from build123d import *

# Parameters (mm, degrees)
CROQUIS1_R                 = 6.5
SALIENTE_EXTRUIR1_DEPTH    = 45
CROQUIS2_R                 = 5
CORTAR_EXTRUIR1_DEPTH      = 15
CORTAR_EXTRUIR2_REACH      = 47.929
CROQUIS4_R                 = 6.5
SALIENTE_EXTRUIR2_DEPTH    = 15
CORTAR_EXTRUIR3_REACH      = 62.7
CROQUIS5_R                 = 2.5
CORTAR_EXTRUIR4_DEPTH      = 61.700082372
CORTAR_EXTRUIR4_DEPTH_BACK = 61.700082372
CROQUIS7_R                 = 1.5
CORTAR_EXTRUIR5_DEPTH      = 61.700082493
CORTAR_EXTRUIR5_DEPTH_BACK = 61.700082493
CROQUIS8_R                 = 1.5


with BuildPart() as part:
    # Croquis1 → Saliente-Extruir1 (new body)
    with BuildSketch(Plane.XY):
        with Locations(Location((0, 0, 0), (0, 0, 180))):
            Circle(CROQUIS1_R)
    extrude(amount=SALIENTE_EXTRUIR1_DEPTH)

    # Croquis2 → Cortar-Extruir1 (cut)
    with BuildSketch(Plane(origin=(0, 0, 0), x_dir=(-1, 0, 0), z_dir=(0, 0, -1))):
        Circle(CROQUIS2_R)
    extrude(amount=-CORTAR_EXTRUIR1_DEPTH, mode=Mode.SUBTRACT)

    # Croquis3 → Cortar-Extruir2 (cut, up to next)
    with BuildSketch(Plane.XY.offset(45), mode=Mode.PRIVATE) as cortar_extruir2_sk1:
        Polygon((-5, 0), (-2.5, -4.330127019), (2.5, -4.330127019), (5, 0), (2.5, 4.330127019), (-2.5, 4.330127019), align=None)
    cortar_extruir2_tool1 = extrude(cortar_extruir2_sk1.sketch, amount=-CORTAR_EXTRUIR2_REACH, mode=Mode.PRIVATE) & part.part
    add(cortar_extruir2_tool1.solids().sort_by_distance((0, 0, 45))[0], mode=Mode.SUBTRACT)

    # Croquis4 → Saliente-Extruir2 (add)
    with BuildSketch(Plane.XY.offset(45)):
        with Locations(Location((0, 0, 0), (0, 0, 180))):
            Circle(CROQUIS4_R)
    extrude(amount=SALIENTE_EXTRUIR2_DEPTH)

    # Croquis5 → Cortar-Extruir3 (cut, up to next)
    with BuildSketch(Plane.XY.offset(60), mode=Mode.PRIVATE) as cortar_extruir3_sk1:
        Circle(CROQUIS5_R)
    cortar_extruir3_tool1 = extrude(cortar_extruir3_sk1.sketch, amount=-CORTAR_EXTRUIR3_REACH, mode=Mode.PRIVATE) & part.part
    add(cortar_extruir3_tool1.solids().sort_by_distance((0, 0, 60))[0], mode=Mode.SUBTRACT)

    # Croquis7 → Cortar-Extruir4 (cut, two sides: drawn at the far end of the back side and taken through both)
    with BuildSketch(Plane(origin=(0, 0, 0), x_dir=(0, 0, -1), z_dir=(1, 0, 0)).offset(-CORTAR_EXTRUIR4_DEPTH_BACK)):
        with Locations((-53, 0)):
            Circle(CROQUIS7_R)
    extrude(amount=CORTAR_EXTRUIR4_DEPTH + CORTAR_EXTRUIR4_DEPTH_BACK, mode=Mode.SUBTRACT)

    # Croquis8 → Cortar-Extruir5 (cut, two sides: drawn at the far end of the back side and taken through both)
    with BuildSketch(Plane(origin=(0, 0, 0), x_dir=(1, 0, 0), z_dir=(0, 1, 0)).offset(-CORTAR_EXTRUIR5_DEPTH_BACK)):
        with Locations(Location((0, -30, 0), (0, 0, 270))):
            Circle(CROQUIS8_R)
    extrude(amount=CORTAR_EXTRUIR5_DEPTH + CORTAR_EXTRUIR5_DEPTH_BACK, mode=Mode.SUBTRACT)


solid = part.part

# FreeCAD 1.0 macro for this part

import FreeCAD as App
import Part
import Sketcher

V = App.Vector
Q = App.Units.Quantity

doc = App.newDocument("Part")
body = doc.addObject("PartDesign::Body", "Body")

# Sketch on XY plane
sketch1 = doc.addObject("Sketcher::SketchObject", "Sketch")
body.addObject(sketch1)
sketch1.AttachmentSupport = (doc.XY_Plane, [""])
sketch1.MapMode = "FlatFace"
sketch1.addGeometry(Part.Circle(V(0, 0, 0), V(0, 0, 1), 6), False)
sketch1.addConstraint(Sketcher.Constraint("Coincident", 0, 3, -1, 1))
sketch1.addConstraint(Sketcher.Constraint("Diameter", 0, 13.0))
pad1 = doc.addObject("PartDesign::Pad", "Pad")
body.addObject(pad1)
pad1.Profile = sketch1
pad1.Length = 45

# Sketch on XY plane
sketch2 = doc.addObject("Sketcher::SketchObject", "Sketch001")
body.addObject(sketch2)
sketch2.AttachmentSupport = (doc.XY_Plane, [""])
sketch2.MapMode = "FlatFace"
sketch2.addGeometry(Part.Circle(V(0, 0, 0), V(0, 0, 1), 5), False)
sketch2.addConstraint(Sketcher.Constraint("Coincident", 0, 3, -1, 1))
sketch2.addConstraint(Sketcher.Constraint("Diameter", 0, 10.0))
pocket1 = doc.addObject("PartDesign::Pocket", "Pocket")
body.addObject(pocket1)
pocket1.Profile = sketch2
pocket1.Length = 15
pocket1.Reversed = True

# Sketch on XY plane
sketch3 = doc.addObject("Sketcher::SketchObject", "Sketch002")
body.addObject(sketch3)
sketch3.AttachmentSupport = (doc.XY_Plane, [""])
sketch3.MapMode = "FlatFace"
sketch3.AttachmentOffset = App.Placement(V(0, 0, 45), App.Rotation())
sketch3.addGeometry(Part.LineSegment(V(-5, 0, 0), V(-2, -4, 0)), False)
sketch3.addGeometry(Part.LineSegment(V(-2, -4, 0), V(2, -4, 0)), False)
sketch3.addGeometry(Part.LineSegment(V(2, -4, 0), V(5, 0, 0)), False)
sketch3.addGeometry(Part.LineSegment(V(5, 0, 0), V(2, 4, 0)), False)
sketch3.addGeometry(Part.LineSegment(V(2, 4, 0), V(-2, 4, 0)), False)
sketch3.addGeometry(Part.LineSegment(V(-2, 4, 0), V(-5, 0, 0)), False)
sketch3.addConstraint(Sketcher.Constraint("Coincident", 0, 2, 1, 1))
sketch3.addConstraint(Sketcher.Constraint("Coincident", 1, 2, 2, 1))
sketch3.addConstraint(Sketcher.Constraint("Coincident", 2, 2, 3, 1))
sketch3.addConstraint(Sketcher.Constraint("Coincident", 3, 2, 4, 1))
sketch3.addConstraint(Sketcher.Constraint("Coincident", 4, 2, 5, 1))
sketch3.addConstraint(Sketcher.Constraint("Coincident", 5, 2, 0, 1))
sketch3.addConstraint(Sketcher.Constraint("Horizontal", 1))
sketch3.addConstraint(Sketcher.Constraint("Horizontal", 4))
sketch3.addConstraint(Sketcher.Constraint("Symmetric", 0, 2, 3, 2, -1, 1))
sketch3.addConstraint(Sketcher.Constraint("Symmetric", 2, 2, 5, 2, -1, 1))
sketch3.addConstraint(Sketcher.Constraint("PointOnObject", 2, 2, -1))
sketch3.addConstraint(Sketcher.Constraint("Parallel", 2, 5))
sketch3.addConstraint(Sketcher.Constraint("Vertical", 1, 2, 3, 2))
sketch3.addConstraint(Sketcher.Constraint("DistanceX", 1, 1, 1, 2, 5.0))
sketch3.addConstraint(Sketcher.Constraint("Angle", 0, Q("-60 deg")))
sketch3.addConstraint(Sketcher.Constraint("Distance", 0, 5.0))
pocket2 = doc.addObject("PartDesign::Pocket", "Pocket001")
body.addObject(pocket2)
pocket2.Profile = sketch3
pocket2.Type = "UpToFirst"

# Sketch on XY plane
sketch4 = doc.addObject("Sketcher::SketchObject", "Sketch003")
body.addObject(sketch4)
sketch4.AttachmentSupport = (doc.XY_Plane, [""])
sketch4.MapMode = "FlatFace"
sketch4.AttachmentOffset = App.Placement(V(0, 0, 45), App.Rotation())
sketch4.addGeometry(Part.Circle(V(0, 0, 0), V(0, 0, 1), 6), False)
sketch4.addConstraint(Sketcher.Constraint("Coincident", 0, 3, -1, 1))
sketch4.addConstraint(Sketcher.Constraint("Diameter", 0, 13.0))
pad2 = doc.addObject("PartDesign::Pad", "Pad001")
body.addObject(pad2)
pad2.Profile = sketch4
pad2.Length = 15

# Sketch on XY plane
sketch5 = doc.addObject("Sketcher::SketchObject", "Sketch004")
body.addObject(sketch5)
sketch5.AttachmentSupport = (doc.XY_Plane, [""])
sketch5.MapMode = "FlatFace"
sketch5.AttachmentOffset = App.Placement(V(0, 0, 60), App.Rotation())
sketch5.addGeometry(Part.Circle(V(0, 0, 0), V(0, 0, 1), 2.5), False)
sketch5.addConstraint(Sketcher.Constraint("Coincident", 0, 3, -1, 1))
sketch5.addConstraint(Sketcher.Constraint("Diameter", 0, 5.0))
pocket3 = doc.addObject("PartDesign::Pocket", "Pocket002")
body.addObject(pocket3)
pocket3.Profile = sketch5
pocket3.Type = "UpToFirst"

# Sketch on YZ plane
sketch6 = doc.addObject("Sketcher::SketchObject", "Sketch005")
body.addObject(sketch6)
sketch6.AttachmentSupport = (doc.YZ_Plane, [""])
sketch6.MapMode = "FlatFace"
sketch6.addGeometry(Part.Circle(V(0, 53, 0), V(0, 0, 1), 1.5), False)
sketch6.addConstraint(Sketcher.Constraint("PointOnObject", 0, 3, -2))
sketch6.addConstraint(Sketcher.Constraint("Diameter", 0, 3.0))
sketch6.addConstraint(Sketcher.Constraint("DistanceY", -1, 1, 0, 3, 53.0))
pocket4 = doc.addObject("PartDesign::Pocket", "Pocket003")
body.addObject(pocket4)
pocket4.Profile = sketch6
pocket4.Type = "ThroughAll"
pocket4.Midplane = True

# Sketch on XZ plane
sketch7 = doc.addObject("Sketcher::SketchObject", "Sketch006")
body.addObject(sketch7)
sketch7.AttachmentSupport = (doc.XZ_Plane, [""])
sketch7.MapMode = "FlatFace"
sketch7.addGeometry(Part.Circle(V(0, 30, 0), V(0, 0, 1), 1.5), False)
sketch7.addConstraint(Sketcher.Constraint("PointOnObject", 0, 3, -2))
sketch7.addConstraint(Sketcher.Constraint("Diameter", 0, 3.0))
sketch7.addConstraint(Sketcher.Constraint("DistanceY", -1, 1, 0, 3, 30.0))
pocket5 = doc.addObject("PartDesign::Pocket", "Pocket004")
body.addObject(pocket5)
pocket5.Profile = sketch7
pocket5.Type = "ThroughAll"
pocket5.Midplane = True

doc.recompute()
